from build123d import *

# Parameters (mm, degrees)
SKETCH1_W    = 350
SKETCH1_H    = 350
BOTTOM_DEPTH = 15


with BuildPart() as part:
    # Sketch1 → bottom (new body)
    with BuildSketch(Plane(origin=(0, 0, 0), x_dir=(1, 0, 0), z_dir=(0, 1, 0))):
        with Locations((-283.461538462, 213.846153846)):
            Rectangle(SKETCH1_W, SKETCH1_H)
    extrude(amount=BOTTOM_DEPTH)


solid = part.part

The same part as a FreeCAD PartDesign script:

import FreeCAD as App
import Part
import Sketcher

V = App.Vector


def add_polygon(sketch, points):
    """Adds a closed chain of lines whose ends are joined by coincident constraints."""
    first, n = sketch.GeometryCount, len(points)
    for a, b in zip(points, points[1:] + points[:1]):
        sketch.addGeometry(Part.LineSegment(App.Vector(*a, 0), App.Vector(*b, 0)), False)
    for i in range(n):
        sketch.addConstraint(Sketcher.Constraint("Coincident", first + i, 2, first + (i + 1) % n, 1))

doc = App.newDocument("Part")
body = doc.addObject("PartDesign::Body", "Body")

sketch1 = body.newObject("Sketcher::SketchObject", "Sketch")
sketch1.AttachmentSupport = (doc.getObject("XZ_Plane"), [""])
sketch1.MapMode = "FlatFace"
add_polygon(sketch1, [(-458, -389), (-458, -39), (-108, -39), (-108, -389)])
sketch1.addConstraint(Sketcher.Constraint("Vertical", 0))
sketch1.addConstraint(Sketcher.Constraint("Horizontal", 1))
sketch1.addConstraint(Sketcher.Constraint("Vertical", 2))
sketch1.addConstraint(Sketcher.Constraint("Horizontal", 3))
sketch1.addConstraint(Sketcher.Constraint("Equal", 3, 0))
sketch1.addConstraint(Sketcher.Constraint("DistanceX", 1, 1, 1, 2, 350.0))
sketch1.addConstraint(Sketcher.Constraint("DistanceX", 0, 2, -1, 1, 458.461538))
sketch1.addConstraint(Sketcher.Constraint("DistanceY", 0, 2, -1, 1, 38.846154))
pad1 = body.newObject("PartDesign::Pad", "Pad")
pad1.Profile = sketch1
pad1.Length = 15
pad1.Reversed = True

doc.recompute()
